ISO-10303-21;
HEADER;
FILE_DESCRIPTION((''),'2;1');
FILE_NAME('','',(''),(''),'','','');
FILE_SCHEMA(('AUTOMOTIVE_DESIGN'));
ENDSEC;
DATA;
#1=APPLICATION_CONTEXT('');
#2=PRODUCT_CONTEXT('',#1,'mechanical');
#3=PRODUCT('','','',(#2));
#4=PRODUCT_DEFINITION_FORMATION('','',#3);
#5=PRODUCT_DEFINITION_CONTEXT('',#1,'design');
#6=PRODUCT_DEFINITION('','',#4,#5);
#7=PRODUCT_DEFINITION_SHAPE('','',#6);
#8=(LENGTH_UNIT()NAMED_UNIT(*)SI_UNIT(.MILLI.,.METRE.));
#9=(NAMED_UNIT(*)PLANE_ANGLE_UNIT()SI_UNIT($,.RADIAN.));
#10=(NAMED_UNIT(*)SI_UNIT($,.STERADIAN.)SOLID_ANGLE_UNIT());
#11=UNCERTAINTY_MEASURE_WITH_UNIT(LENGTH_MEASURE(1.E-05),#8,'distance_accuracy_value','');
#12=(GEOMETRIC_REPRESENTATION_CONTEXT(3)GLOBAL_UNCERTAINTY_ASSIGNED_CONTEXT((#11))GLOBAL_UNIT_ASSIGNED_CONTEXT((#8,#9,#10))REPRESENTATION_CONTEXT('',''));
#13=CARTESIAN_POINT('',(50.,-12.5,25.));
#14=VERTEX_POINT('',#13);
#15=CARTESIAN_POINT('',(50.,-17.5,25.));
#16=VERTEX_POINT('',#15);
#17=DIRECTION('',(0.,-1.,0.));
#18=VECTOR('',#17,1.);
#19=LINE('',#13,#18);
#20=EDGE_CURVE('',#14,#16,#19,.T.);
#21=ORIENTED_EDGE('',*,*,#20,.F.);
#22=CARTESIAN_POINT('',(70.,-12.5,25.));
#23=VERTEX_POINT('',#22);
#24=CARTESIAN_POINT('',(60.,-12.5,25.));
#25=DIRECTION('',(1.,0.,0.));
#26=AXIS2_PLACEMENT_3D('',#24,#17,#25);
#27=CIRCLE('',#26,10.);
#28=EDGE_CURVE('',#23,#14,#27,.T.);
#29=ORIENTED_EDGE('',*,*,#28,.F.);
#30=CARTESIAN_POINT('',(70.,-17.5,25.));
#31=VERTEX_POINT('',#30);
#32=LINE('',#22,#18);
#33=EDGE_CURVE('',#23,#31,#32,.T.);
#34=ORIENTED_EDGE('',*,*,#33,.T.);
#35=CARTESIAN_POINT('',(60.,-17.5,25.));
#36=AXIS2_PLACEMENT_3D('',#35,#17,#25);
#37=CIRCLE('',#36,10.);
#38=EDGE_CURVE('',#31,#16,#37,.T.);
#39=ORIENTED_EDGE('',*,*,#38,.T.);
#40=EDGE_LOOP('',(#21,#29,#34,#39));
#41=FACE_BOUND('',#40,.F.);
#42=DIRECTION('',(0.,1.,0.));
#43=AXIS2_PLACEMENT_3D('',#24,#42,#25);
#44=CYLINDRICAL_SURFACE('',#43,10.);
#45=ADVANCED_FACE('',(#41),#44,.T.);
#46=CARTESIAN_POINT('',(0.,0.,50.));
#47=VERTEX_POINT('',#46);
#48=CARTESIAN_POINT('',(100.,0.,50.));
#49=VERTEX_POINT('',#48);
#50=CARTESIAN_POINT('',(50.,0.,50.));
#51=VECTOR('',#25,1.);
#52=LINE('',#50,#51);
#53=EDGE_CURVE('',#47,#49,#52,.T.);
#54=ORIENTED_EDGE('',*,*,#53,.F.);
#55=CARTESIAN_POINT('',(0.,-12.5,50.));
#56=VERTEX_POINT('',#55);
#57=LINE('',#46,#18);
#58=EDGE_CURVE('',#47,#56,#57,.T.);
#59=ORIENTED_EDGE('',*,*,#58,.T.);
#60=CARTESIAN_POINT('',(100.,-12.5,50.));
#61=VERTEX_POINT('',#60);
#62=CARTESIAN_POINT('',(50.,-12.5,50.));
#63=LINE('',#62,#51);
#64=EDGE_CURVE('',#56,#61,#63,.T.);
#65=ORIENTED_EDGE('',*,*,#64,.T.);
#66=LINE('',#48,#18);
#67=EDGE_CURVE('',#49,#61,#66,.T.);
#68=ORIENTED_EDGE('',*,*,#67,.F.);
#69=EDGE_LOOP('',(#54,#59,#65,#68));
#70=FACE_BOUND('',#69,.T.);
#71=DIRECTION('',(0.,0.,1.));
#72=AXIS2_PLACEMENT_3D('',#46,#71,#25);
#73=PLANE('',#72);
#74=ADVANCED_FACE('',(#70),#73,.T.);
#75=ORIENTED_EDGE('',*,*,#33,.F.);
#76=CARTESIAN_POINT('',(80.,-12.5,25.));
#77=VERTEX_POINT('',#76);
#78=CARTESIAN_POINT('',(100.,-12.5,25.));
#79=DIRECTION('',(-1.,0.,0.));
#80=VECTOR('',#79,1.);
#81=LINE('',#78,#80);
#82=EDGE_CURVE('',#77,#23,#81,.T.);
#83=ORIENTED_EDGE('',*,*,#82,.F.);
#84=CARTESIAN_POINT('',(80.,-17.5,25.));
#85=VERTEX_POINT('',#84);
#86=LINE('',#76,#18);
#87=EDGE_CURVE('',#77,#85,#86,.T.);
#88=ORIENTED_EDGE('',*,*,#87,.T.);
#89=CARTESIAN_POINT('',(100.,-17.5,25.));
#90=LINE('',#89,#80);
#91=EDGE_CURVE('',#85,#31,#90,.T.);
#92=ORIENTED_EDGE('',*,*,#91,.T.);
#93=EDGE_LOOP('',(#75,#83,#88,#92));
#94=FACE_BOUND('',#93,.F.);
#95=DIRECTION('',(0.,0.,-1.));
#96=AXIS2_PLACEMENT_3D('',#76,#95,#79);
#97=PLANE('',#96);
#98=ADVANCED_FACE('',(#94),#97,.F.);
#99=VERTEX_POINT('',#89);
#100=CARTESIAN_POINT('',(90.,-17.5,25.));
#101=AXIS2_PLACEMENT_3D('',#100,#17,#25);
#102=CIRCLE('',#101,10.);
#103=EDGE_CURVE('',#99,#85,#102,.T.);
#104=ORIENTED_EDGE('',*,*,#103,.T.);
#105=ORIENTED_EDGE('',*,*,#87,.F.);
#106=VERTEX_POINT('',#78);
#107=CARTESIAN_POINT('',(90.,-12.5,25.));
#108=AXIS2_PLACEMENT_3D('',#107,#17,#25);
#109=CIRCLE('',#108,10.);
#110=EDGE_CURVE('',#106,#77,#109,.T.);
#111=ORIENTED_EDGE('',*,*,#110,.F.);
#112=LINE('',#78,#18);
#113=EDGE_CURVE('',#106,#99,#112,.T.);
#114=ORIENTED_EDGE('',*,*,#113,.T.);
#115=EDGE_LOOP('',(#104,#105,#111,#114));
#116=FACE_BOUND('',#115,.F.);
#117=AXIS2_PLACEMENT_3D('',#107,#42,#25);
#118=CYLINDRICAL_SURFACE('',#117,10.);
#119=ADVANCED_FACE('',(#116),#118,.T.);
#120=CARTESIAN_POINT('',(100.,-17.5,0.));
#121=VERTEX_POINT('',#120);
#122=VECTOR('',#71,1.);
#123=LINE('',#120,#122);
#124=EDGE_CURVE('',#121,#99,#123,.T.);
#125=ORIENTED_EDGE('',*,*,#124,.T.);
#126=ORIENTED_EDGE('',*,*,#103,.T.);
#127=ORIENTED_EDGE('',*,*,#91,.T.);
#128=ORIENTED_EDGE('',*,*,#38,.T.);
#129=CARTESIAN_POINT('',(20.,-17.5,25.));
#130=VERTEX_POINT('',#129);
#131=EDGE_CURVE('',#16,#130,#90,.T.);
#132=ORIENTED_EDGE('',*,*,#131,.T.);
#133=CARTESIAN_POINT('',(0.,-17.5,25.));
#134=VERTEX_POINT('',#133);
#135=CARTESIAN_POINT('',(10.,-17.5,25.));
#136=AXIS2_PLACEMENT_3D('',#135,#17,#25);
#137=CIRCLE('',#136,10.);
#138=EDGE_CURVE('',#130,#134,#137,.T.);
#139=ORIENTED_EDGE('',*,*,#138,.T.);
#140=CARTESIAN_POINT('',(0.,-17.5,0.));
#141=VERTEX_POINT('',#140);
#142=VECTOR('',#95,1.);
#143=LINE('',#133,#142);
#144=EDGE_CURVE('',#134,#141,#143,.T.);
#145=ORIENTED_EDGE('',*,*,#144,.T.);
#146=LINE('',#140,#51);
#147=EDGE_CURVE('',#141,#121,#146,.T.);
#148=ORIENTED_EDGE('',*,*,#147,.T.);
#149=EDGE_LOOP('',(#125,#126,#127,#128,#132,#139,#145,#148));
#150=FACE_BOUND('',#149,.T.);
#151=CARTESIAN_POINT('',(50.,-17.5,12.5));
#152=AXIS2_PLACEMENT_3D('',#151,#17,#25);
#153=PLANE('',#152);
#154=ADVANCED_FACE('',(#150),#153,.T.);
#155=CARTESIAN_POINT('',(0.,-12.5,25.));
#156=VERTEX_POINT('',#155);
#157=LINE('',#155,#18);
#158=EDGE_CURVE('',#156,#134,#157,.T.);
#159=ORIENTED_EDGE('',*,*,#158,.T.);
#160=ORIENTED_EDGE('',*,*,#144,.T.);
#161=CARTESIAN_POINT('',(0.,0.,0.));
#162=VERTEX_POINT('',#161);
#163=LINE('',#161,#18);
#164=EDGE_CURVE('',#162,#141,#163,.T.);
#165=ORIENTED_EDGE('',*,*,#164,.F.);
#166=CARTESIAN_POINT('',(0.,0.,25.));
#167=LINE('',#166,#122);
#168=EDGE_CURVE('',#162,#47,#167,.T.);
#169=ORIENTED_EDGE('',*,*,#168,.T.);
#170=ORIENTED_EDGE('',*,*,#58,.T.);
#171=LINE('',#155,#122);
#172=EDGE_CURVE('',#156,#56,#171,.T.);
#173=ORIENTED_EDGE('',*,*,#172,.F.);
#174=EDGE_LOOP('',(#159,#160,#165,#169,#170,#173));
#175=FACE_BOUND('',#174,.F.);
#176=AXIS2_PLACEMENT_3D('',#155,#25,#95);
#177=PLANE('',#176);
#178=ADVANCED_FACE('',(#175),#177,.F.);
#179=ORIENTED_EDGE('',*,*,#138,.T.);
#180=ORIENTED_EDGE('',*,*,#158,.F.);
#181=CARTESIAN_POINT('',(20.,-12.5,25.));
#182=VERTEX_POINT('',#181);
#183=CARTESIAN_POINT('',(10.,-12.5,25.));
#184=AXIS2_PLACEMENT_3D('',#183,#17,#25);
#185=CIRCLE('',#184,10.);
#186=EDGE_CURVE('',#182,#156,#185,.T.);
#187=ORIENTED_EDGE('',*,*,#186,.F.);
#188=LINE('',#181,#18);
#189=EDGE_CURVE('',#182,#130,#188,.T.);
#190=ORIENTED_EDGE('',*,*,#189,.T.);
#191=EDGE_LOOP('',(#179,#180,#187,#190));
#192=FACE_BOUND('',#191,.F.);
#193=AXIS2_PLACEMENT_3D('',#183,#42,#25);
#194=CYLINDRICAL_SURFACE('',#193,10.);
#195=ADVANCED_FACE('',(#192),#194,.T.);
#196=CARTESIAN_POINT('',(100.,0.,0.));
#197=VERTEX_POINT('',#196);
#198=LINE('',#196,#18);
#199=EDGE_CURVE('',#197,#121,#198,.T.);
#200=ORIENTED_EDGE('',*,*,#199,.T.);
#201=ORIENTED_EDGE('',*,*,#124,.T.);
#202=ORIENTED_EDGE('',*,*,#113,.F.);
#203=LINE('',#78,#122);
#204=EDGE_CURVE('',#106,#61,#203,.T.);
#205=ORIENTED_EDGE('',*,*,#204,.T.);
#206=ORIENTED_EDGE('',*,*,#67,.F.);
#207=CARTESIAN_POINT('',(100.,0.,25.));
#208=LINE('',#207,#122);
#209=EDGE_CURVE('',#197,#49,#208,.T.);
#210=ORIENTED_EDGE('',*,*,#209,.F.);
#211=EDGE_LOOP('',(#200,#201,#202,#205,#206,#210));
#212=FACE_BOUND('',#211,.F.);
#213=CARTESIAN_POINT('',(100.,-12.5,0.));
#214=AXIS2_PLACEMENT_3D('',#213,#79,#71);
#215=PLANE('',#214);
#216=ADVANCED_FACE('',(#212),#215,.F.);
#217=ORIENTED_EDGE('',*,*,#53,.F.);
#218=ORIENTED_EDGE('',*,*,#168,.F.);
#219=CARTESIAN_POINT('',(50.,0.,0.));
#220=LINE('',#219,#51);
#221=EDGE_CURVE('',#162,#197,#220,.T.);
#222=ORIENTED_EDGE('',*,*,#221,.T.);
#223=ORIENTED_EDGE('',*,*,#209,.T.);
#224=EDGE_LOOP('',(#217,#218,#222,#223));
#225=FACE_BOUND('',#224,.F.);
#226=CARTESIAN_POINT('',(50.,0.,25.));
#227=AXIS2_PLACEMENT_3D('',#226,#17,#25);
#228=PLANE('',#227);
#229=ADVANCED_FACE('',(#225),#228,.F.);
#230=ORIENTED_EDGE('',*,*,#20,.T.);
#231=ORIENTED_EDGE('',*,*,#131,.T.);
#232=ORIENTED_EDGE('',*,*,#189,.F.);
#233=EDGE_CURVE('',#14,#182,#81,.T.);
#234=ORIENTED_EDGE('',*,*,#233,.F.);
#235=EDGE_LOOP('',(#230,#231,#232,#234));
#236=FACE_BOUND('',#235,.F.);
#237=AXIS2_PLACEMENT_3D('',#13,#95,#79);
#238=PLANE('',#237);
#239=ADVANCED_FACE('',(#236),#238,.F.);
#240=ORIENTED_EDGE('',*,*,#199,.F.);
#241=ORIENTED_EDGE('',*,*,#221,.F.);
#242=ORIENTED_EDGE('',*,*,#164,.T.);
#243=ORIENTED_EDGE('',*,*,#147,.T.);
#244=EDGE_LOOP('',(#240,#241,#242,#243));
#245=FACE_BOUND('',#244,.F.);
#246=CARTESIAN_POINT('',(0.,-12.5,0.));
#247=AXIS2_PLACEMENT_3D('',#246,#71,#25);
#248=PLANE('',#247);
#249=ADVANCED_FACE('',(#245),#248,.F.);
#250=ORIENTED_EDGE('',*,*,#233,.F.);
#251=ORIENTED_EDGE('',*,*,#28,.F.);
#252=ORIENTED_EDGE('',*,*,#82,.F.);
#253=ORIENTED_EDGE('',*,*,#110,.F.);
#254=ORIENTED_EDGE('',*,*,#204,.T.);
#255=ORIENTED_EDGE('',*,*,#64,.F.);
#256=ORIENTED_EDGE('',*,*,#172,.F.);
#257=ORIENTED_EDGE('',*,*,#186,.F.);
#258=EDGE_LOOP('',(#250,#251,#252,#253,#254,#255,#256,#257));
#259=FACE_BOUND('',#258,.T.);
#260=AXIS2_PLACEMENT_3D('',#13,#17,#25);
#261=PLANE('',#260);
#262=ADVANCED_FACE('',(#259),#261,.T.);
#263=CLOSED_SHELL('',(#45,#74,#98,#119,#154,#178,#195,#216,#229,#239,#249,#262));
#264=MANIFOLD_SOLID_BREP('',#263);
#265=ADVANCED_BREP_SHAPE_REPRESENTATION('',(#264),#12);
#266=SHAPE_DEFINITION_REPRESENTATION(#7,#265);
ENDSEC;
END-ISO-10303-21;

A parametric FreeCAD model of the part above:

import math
import FreeCAD as App
import Part
import Sketcher

V = App.Vector


def add_polygon(sketch, points):
    """Adds a closed chain of lines whose ends are joined by coincident constraints."""
    first, n = sketch.GeometryCount, len(points)
    for a, b in zip(points, points[1:] + points[:1]):
        sketch.addGeometry(Part.LineSegment(App.Vector(*a, 0), App.Vector(*b, 0)), False)
    for i in range(n):
        sketch.addConstraint(Sketcher.Constraint("Coincident", first + i, 2, first + (i + 1) % n, 1))

doc = App.newDocument("Part")
params = doc.addObject("Spreadsheet::Sheet", "Params")
for row, (alias, value) in enumerate([
    ("sketch1_width", "100 mm"),
    ("sketch1_height", "50 mm"),
    ("pad1_length", "12.5 mm"),
    ("sketch2_radius", "10 mm"),
    ("sketch2_width", "100 mm"),
    ("sketch2_width2", "10 mm"),
    ("sketch2_height", "25 mm"),
    ("pad2_length", "5 mm"),
], start=1):
    params.set(f"A{row}", alias)
    params.set(f"B{row}", "=" + value)
    params.setAlias(f"B{row}", alias)

body = doc.addObject("PartDesign::Body", "Body")

sketch1 = doc.addObject("Sketcher::SketchObject", "Sketch")
body.addObject(sketch1)
sketch1.AttachmentSupport = (doc.XZ_Plane, [""])
sketch1.MapMode = "FlatFace"
add_polygon(sketch1, [(0, 50), (0, 0), (100, 0), (100, 50)])
sketch1.addConstraint([
    Sketcher.Constraint("Vertical", 0),
    Sketcher.Constraint("Horizontal", 1),
    Sketcher.Constraint("Vertical", 2),
    Sketcher.Constraint("Horizontal", 3),
    Sketcher.Constraint("Coincident", 0, 2, -1, 1),
    Sketcher.Constraint("DistanceX", 1, 1, 1, 2, 100.0),
    Sketcher.Constraint("DistanceY", 0, 2, 0, 1, 50.0),
])
sketch1.setExpression("Constraints[9]", "Params.sketch1_width")
sketch1.setExpression("Constraints[10]", "Params.sketch1_height")
pad1 = doc.addObject("PartDesign::Pad", "Pad")
body.addObject(pad1)
pad1.Profile = sketch1
pad1.setExpression("Length", "Params.pad1_length")

sketch2 = doc.addObject("Sketcher::SketchObject", "Sketch001")
body.addObject(sketch2)
sketch2.AttachmentSupport = (doc.XZ_Plane, [""])
sketch2.MapMode = "FlatFace"
sketch2.AttachmentOffset = App.Placement(V(0, 0, 12.5), App.Rotation())
sketch2.addGeometry([
    Part.LineSegment(V(0, 25, 0), V(0, 0, 0)),
    Part.LineSegment(V(0, 0, 0), V(100, 0, 0)),
    Part.LineSegment(V(100, 0, 0), V(100, 25, 0)),
    Part.ArcOfCircle(Part.Circle(V(90, 25, 0), V(0, 0, 1), 10), math.radians(0), math.radians(180)),
    Part.LineSegment(V(80, 25, 0), V(70, 25, 0)),
    Part.ArcOfCircle(Part.Circle(V(60, 25, 0), V(0, 0, 1), 10), math.radians(0), math.radians(180)),
    Part.LineSegment(V(50, 25, 0), V(20, 25, 0)),
    Part.ArcOfCircle(Part.Circle(V(10, 25, 0), V(0, 0, 1), 10), math.radians(0), math.radians(180)),
], False)
sketch2.addConstraint([
    Sketcher.Constraint("Coincident", 0, 2, 1, 1),
    Sketcher.Constraint("Coincident", 1, 2, 2, 1),
    Sketcher.Constraint("Tangent", 2, 2, 3, 1),
    Sketcher.Constraint("Coincident", 3, 2, 4, 1),
    Sketcher.Constraint("Coincident", 4, 2, 5, 1),
    Sketcher.Constraint("Coincident", 5, 2, 6, 1),
    Sketcher.Constraint("Coincident", 6, 2, 7, 1),
    Sketcher.Constraint("Tangent", 7, 2, 0, 1),
    Sketcher.Constraint("Vertical", 0),
    Sketcher.Constraint("Horizontal", 1),
    Sketcher.Constraint("Vertical", 2),
    Sketcher.Constraint("Horizontal", 4),
    Sketcher.Constraint("Horizontal", 6),
    Sketcher.Constraint("Coincident", 0, 2, -1, 1),
    Sketcher.Constraint("Equal", 3, 5),
    Sketcher.Constraint("Equal", 5, 7),
    Sketcher.Constraint("Horizontal", 3, 3, 5, 3),
    Sketcher.Constraint("Horizontal", 5, 3, 7, 3),
    Sketcher.Constraint("Horizontal", 2, 2, 3, 2),
    Sketcher.Constraint("Horizontal", 4, 2, 5, 2),
    Sketcher.Constraint("Radius", 3, 10.0),
    Sketcher.Constraint("DistanceX", 1, 1, 1, 2, 100.0),
    Sketcher.Constraint("DistanceX", 4, 2, 4, 1, 10.0),
    Sketcher.Constraint("DistanceY", 0, 2, 0, 1, 25.0),
])
sketch2.setExpression("Constraints[20]", "Params.sketch2_radius")
sketch2.setExpression("Constraints[21]", "Params.sketch2_width")
sketch2.setExpression("Constraints[22]", "Params.sketch2_width2")
sketch2.setExpression("Constraints[23]", "Params.sketch2_height")
pad2 = doc.addObject("PartDesign::Pad", "Pad001")
body.addObject(pad2)
pad2.Profile = sketch2
pad2.setExpression("Length", "Params.pad2_length")

doc.recompute()
